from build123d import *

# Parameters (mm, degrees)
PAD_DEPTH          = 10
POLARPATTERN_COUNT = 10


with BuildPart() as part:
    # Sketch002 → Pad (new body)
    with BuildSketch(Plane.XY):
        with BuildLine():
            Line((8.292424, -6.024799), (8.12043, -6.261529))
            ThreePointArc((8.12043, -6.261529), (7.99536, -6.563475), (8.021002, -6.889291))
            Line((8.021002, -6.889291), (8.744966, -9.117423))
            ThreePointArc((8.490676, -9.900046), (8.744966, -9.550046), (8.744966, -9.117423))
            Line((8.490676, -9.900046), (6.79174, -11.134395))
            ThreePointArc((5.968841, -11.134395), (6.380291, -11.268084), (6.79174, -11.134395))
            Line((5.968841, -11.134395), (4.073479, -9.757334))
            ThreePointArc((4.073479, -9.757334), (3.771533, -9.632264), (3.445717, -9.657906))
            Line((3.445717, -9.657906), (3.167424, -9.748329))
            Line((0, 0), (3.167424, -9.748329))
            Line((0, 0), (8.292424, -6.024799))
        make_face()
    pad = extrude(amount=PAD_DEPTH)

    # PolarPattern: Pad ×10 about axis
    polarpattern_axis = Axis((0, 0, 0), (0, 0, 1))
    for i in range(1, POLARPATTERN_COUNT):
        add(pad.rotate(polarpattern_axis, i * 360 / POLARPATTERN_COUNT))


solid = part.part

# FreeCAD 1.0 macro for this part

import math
import FreeCAD as App
import Part
import Sketcher
from FreeCAD import Vector
Q = App.Units.Quantity

doc = App.newDocument("Part")
body = doc.addObject("PartDesign::Body", "Body")

# Sketch on XY plane
sketch1 = body.newObject("Sketcher::SketchObject", "Sketch")
sketch1.AttachmentSupport = (doc.getObject("XY_Plane"), [""])
sketch1.MapMode = "FlatFace"
sketch1.addGeometry([
    Part.LineSegment(Vector(8.12043, -6.261529, 0), Vector(8.292424, -6.024799, 0)),  # 0
    Part.LineSegment(Vector(8.292424, -6.024799, 0), Vector(0, 0, 0)),  # 1
    Part.LineSegment(Vector(0, 0, 0), Vector(3.167424, -9.748329, 0)),  # 2
    Part.LineSegment(Vector(3.167424, -9.748329, 0), Vector(3.445717, -9.657906, 0)),  # 3
    Part.ArcOfCircle(Part.Circle(Vector(3.662028, -10.323648, 0), Vector(0, 0, 1), 0.700002), math.radians(54.000045), math.radians(107.999907)),  # 4
    Part.LineSegment(Vector(4.073479, -9.757334, 0), Vector(5.968841, -11.134395, 0)),  # 5
    Part.ArcOfCircle(Part.Circle(Vector(6.380291, -10.568088, 0), Vector(0, 0, 1), 0.699996), math.radians(-126.00024), math.radians(-53.99976)),  # 6
    Part.LineSegment(Vector(6.79174, -11.134395, 0), Vector(8.490676, -9.900046, 0)),  # 7
    Part.ArcOfCircle(Part.Circle(Vector(8.079227, -9.333735, 0), Vector(0, 0, 1), 0.699999), math.radians(-54.000037), math.radians(17.999988)),  # 8
    Part.LineSegment(Vector(8.744966, -9.117423, 0), Vector(8.021002, -6.889291, 0)),  # 9
    Part.ArcOfCircle(Part.Circle(Vector(8.686744, -6.67298, 0), Vector(0, 0, 1), 0.700002), math.radians(144.000045), math.radians(197.999907)),  # 10
], False)
sketch1.addConstraint([
    Sketcher.Constraint("Coincident", 0, 2, 1, 1),
    Sketcher.Constraint("Coincident", 1, 2, 2, 1),
    Sketcher.Constraint("Coincident", 2, 2, 3, 1),
    Sketcher.Constraint("Coincident", 3, 2, 4, 2),
    Sketcher.Constraint("Tangent", 4, 1, 5, 1),
    Sketcher.Constraint("Coincident", 5, 2, 6, 1),
    Sketcher.Constraint("Coincident", 6, 2, 7, 1),
    Sketcher.Constraint("Tangent", 7, 2, 8, 1),
    Sketcher.Constraint("Tangent", 8, 2, 9, 1),
    Sketcher.Constraint("Tangent", 9, 2, 10, 2),
    Sketcher.Constraint("Tangent", 10, 1, 0, 1),
    Sketcher.Constraint("Coincident", 1, 2, -1, 1),
    Sketcher.Constraint("Equal", 4, 10),
    Sketcher.Constraint("Perpendicular", 0, 1),
    Sketcher.Constraint("Perpendicular", 2, 3),
    Sketcher.Constraint("Parallel", 1, 5),
    Sketcher.Constraint("Perpendicular", 3, 9),
    Sketcher.Constraint("Horizontal", 5, 2, 6, 2),
    Sketcher.Constraint("Equal", 1, 2),
    Sketcher.Constraint("Equal", 0, 3),
    Sketcher.Constraint("Equal", 5, 9),
    Sketcher.Constraint("Radius", 8, Q("0.699999 mm")),
    Sketcher.Constraint("Angle", 1, Q("143.999999 deg")),
    Sketcher.Constraint("Angle", 2, Q("-72.000001 deg")),
    Sketcher.Constraint("Angle", 7, Q("35.999994 deg")),
    Sketcher.Constraint("Distance", 7, Q("2.1 mm")),
    Sketcher.Constraint("Distance", 1, Q("10.25 mm")),
    Sketcher.Constraint("DistanceX", -1, 1, 9, 2, Q("8.021002 mm")),
    Sketcher.Constraint("Radius", 4, Q("0.700002 mm")),
    Sketcher.Constraint("Radius", 6, Q("0.699996 mm")),
    Sketcher.Constraint("DistanceX", 4, 3, 8, 3, Q("4.417199 mm")),
])
pad1 = body.newObject("PartDesign::Pad", "Pad")
pad1.Profile = sketch1
pad1.Length = 10
doc.recompute()

polarpattern = body.newObject("PartDesign::PolarPattern", "PolarPattern")
polarpattern.Originals = [pad1]
polarpattern.Axis = (doc.getObject("Z_Axis"), [""])
polarpattern.Angle = 360
polarpattern.Occurrences = 10
body.Tip = polarpattern

doc.recompute()
